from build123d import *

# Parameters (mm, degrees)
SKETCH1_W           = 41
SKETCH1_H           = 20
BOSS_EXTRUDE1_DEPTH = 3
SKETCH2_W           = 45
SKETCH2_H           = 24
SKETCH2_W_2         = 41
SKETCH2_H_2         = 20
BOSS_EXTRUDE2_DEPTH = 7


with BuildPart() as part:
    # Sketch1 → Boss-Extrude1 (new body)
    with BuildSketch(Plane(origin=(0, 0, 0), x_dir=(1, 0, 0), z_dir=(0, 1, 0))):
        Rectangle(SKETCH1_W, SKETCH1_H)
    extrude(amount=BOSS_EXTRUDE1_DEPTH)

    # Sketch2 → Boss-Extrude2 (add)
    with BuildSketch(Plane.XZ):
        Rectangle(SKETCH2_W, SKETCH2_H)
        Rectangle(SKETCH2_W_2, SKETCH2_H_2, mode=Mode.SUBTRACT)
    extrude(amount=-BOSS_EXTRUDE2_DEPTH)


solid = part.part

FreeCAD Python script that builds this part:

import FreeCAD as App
import Part
import Sketcher
from FreeCAD import Vector


def add_polygon(sketch, points):
    """Adds a closed chain of lines whose ends are joined by coincident constraints."""
    first, n = sketch.GeometryCount, len(points)
    for a, b in zip(points, points[1:] + points[:1]):
        sketch.addGeometry(Part.LineSegment(App.Vector(*a, 0), App.Vector(*b, 0)), False)
    for i in range(n):
        sketch.addConstraint(Sketcher.Constraint("Coincident", first + i, 2, first + (i + 1) % n, 1))

doc = App.newDocument("Part")
body = doc.addObject("PartDesign::Body", "Body")

# Sketch on XZ plane
sketch1 = body.newObject("Sketcher::SketchObject", "Sketch")
sketch1.AttachmentSupport = (doc.getObject("XZ_Plane"), [""])
sketch1.MapMode = "FlatFace"
add_polygon(sketch1, [(-20, -10), (-20, 10), (20, 10), (20, -10)])  # lines 0-3
sketch1.addConstraint([
    Sketcher.Constraint("Vertical", 0),
    Sketcher.Constraint("Horizontal", 1),
    Sketcher.Constraint("Vertical", 2),
    Sketcher.Constraint("Horizontal", 3),
    Sketcher.Constraint("Symmetric", 0, 2, 2, 2, -1, 1),
    Sketcher.Constraint("DistanceX", 1, 1, 1, 2, 41.0),
    Sketcher.Constraint("DistanceY", 0, 1, 0, 2, 20.0),
])
pad1 = body.newObject("PartDesign::Pad", "Pad")
pad1.Profile = sketch1
pad1.Length = 3
pad1.Reversed = True

# Sketch on XZ plane
sketch2 = body.newObject("Sketcher::SketchObject", "Sketch001")
sketch2.AttachmentSupport = (doc.getObject("XZ_Plane"), [""])
sketch2.MapMode = "FlatFace"
add_polygon(sketch2, [(-22, 12), (-22, -12), (22, -12), (22, 12)])  # lines 0-3
add_polygon(sketch2, [(20, -10), (-20, -10), (-20, 10), (20, 10)])  # lines 4-7
sketch2.addConstraint([
    Sketcher.Constraint("Vertical", 0),
    Sketcher.Constraint("Horizontal", 1),
    Sketcher.Constraint("Vertical", 2),
    Sketcher.Constraint("Horizontal", 3),
    Sketcher.Constraint("Horizontal", 4),
    Sketcher.Constraint("Vertical", 5),
    Sketcher.Constraint("Horizontal", 6),
    Sketcher.Constraint("Vertical", 7),
    Sketcher.Constraint("Symmetric", 0, 2, 2, 2, -1, 1),
    Sketcher.Constraint("Symmetric", 4, 2, 6, 2, -1, 1),
    Sketcher.Constraint("DistanceX", 1, 1, 1, 2, 45.0),
    Sketcher.Constraint("DistanceX", 4, 2, 4, 1, 41.0),
    Sketcher.Constraint("DistanceY", 0, 2, 0, 1, 24.0),
    Sketcher.Constraint("DistanceY", 5, 1, 5, 2, 20.0),
])
pad2 = body.newObject("PartDesign::Pad", "Pad001")
pad2.Profile = sketch2
pad2.Length = 7
pad2.Reversed = True

doc.recompute()
